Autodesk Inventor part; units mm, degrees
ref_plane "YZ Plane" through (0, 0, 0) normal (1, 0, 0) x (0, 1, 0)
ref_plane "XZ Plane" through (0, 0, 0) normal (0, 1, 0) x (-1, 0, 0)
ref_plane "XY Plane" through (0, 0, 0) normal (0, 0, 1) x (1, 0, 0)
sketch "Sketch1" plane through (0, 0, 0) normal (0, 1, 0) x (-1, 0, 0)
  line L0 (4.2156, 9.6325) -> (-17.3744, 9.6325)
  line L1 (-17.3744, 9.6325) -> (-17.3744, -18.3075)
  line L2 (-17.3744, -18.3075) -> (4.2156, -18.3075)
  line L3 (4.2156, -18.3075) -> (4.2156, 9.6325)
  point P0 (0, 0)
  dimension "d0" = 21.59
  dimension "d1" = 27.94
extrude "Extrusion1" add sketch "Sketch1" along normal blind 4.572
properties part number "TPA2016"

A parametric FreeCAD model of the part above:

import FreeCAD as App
import Part
import Sketcher

V = App.Vector
Q = App.Units.Quantity


def add_polygon(sketch, points):
    """Adds a closed chain of lines whose ends are joined by coincident constraints."""
    first, n = sketch.GeometryCount, len(points)
    for a, b in zip(points, points[1:] + points[:1]):
        sketch.addGeometry(Part.LineSegment(App.Vector(*a, 0), App.Vector(*b, 0)), False)
    for i in range(n):
        sketch.addConstraint(Sketcher.Constraint("Coincident", first + i, 2, first + (i + 1) % n, 1))

doc = App.newDocument("Part")
params = doc.addObject("Spreadsheet::Sheet", "Params")
for row, (alias, value) in enumerate([
    ("sketch1_height", "1.1 in"),
    ("sketch1_width", "0.85 in"),
    ("pad1_length", "0.18 in"),
], start=1):
    params.set(f"A{row}", alias)
    params.set(f"B{row}", "=" + value)
    params.setAlias(f"B{row}", alias)

body = doc.addObject("PartDesign::Body", "Body")

# Sketch on XZ plane
sketch1 = body.newObject("Sketcher::SketchObject", "Sketch")
sketch1.AttachmentSupport = (doc.getObject("XZ_Plane"), [""])
sketch1.MapMode = "FlatFace"
add_polygon(sketch1, [(-4.2156, -18.3075), (-4.2156, 9.6325), (17.3744, 9.6325), (17.3744, -18.3075)])  # lines 0-3
sketch1.addConstraint(Sketcher.Constraint("Vertical", 0))
sketch1.addConstraint(Sketcher.Constraint("Horizontal", 1))
sketch1.addConstraint(Sketcher.Constraint("Vertical", 2))
sketch1.addConstraint(Sketcher.Constraint("Horizontal", 3))
sketch1.addConstraint(Sketcher.Constraint("DistanceY", 0, 1, 0, 2, Q("1.1 in")))
sketch1.addConstraint(Sketcher.Constraint("DistanceX", 1, 1, 1, 2, Q("0.85 in")))
sketch1.addConstraint(Sketcher.Constraint("DistanceX", 0, 2, -1, 1, 4.2156))
sketch1.addConstraint(Sketcher.Constraint("DistanceY", -1, 1, 0, 2, 9.6325))
sketch1.setExpression("Constraints[8]", "Params.sketch1_height")
sketch1.setExpression("Constraints[9]", "Params.sketch1_width")
pad1 = body.newObject("PartDesign::Pad", "Pad")
pad1.Profile = sketch1
pad1.setExpression("Length", "Params.pad1_length")
pad1.Reversed = True

doc.recompute()
